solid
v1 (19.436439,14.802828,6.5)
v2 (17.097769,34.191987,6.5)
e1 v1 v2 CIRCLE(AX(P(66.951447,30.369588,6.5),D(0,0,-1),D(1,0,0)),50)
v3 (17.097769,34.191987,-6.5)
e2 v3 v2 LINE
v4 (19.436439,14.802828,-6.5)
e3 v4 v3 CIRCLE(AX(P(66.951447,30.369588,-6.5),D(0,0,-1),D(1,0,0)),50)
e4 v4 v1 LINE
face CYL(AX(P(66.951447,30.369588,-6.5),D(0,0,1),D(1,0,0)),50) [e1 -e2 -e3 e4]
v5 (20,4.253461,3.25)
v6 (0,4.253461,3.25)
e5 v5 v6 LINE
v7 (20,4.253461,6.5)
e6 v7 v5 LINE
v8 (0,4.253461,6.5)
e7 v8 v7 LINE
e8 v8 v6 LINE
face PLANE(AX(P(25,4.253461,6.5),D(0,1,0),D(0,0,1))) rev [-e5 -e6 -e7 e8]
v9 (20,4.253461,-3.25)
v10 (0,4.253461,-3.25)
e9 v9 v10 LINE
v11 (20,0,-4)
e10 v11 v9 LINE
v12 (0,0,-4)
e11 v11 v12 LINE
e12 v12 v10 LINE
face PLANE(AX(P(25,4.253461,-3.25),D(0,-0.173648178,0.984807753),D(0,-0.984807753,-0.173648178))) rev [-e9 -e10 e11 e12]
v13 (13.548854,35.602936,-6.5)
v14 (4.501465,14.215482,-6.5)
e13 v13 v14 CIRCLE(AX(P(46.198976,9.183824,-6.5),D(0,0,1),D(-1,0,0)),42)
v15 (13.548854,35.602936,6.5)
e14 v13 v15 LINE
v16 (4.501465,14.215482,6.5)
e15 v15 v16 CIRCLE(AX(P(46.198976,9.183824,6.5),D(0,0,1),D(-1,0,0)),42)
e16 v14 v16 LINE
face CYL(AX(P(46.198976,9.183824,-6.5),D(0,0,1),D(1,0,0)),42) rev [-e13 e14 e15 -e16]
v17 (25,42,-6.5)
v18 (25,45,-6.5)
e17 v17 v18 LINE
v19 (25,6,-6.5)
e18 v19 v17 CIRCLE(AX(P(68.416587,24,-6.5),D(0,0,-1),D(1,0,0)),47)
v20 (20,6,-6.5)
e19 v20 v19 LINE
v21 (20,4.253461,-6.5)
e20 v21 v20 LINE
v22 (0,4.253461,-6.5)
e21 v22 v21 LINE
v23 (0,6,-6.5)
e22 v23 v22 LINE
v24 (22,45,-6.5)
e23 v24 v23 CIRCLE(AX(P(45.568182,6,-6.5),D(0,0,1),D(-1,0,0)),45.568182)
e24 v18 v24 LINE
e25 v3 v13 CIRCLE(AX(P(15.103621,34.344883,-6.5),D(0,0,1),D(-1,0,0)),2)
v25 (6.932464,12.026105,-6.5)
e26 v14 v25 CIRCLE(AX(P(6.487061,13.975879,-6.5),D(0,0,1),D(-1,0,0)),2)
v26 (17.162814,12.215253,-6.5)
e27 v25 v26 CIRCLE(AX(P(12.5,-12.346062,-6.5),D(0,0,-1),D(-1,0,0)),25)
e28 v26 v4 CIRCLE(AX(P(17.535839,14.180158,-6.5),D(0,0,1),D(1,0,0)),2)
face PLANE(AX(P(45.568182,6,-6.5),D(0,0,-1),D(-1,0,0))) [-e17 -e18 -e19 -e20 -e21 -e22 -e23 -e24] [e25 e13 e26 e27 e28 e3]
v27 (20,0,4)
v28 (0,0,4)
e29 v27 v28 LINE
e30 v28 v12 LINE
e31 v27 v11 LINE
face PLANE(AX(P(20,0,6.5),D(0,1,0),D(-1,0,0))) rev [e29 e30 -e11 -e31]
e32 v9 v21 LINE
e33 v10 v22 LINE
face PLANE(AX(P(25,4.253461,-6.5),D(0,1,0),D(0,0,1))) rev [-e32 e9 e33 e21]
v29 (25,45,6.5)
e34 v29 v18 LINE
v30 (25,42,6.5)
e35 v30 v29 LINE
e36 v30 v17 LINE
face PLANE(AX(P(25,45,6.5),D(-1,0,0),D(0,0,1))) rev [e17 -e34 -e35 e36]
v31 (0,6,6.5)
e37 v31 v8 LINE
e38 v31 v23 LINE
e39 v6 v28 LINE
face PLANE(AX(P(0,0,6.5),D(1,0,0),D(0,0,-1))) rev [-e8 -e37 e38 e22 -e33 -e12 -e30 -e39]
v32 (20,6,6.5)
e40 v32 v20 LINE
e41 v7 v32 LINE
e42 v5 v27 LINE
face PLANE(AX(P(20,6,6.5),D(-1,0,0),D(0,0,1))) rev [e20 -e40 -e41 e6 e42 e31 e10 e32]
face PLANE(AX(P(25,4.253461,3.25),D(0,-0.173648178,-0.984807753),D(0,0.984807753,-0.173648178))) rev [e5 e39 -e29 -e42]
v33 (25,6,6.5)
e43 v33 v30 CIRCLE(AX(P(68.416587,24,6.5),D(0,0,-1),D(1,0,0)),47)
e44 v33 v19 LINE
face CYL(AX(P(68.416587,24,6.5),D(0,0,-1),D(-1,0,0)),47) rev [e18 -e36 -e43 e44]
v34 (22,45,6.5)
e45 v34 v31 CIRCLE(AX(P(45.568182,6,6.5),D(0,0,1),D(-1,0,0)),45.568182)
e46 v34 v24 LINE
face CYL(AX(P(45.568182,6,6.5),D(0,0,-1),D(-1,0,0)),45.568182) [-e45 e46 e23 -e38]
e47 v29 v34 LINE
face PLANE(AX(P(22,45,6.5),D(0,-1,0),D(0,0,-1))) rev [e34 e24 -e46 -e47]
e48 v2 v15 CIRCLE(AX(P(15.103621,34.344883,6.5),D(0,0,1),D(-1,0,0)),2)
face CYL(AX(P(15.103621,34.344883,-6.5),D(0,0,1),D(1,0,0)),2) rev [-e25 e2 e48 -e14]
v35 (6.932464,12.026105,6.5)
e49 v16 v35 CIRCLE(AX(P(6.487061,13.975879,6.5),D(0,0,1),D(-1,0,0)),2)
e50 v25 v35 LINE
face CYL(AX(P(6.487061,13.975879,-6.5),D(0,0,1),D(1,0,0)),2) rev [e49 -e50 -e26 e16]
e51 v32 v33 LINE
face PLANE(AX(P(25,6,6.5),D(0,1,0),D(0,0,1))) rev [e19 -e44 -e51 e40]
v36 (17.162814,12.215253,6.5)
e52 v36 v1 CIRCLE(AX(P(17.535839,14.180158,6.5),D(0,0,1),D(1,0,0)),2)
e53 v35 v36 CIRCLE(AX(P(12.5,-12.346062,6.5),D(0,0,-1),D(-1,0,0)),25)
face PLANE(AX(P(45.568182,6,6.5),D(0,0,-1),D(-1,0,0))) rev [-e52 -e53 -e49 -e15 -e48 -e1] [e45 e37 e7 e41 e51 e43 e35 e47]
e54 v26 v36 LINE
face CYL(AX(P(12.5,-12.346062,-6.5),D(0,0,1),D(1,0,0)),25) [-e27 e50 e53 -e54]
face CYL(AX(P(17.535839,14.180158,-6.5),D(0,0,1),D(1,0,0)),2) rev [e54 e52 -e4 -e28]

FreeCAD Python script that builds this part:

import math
import FreeCAD as App
import Part
import Sketcher

V = App.Vector
Q = App.Units.Quantity


def add_polygon(sketch, points):
    """Adds a closed chain of lines whose ends are joined by coincident constraints."""
    first, n = sketch.GeometryCount, len(points)
    for a, b in zip(points, points[1:] + points[:1]):
        sketch.addGeometry(Part.LineSegment(App.Vector(*a, 0), App.Vector(*b, 0)), False)
    for i in range(n):
        sketch.addConstraint(Sketcher.Constraint("Coincident", first + i, 2, first + (i + 1) % n, 1))

doc = App.newDocument("Part")
body = doc.addObject("PartDesign::Body", "Body")

sketch1 = body.newObject("Sketcher::SketchObject", "Sketch")
sketch1.AttachmentSupport = (doc.getObject("XY_Plane"), [""])
sketch1.MapMode = "FlatFace"
sketch1.addGeometry(Part.LineSegment(V(0, 6, 0), V(0, 0, 0)), False)
sketch1.addGeometry(Part.LineSegment(V(0, 0, 0), V(20, 0, 0)), False)
sketch1.addGeometry(Part.LineSegment(V(20, 0, 0), V(20, 6, 0)), False)
sketch1.addGeometry(Part.LineSegment(V(20, 6, 0), V(25, 6, 0)), False)
sketch1.addGeometry(Part.ArcOfCircle(Part.Circle(V(68.416587, 24, 0), V(0, 0, 1), 47), math.radians(157.481686), math.radians(202.518314)), False)
sketch1.addGeometry(Part.LineSegment(V(25, 42, 0), V(25, 45, 0)), False)
sketch1.addGeometry(Part.LineSegment(V(25, 45, 0), V(22, 45, 0)), False)
sketch1.addGeometry(Part.ArcOfCircle(Part.Circle(V(45.568182, 6, 0), V(0, 0, 1), 45.568182), math.radians(121.145087), math.radians(180)), False)
sketch1.addConstraint(Sketcher.Constraint("Coincident", 0, 2, 1, 1))
sketch1.addConstraint(Sketcher.Constraint("Coincident", 1, 2, 2, 1))
sketch1.addConstraint(Sketcher.Constraint("Coincident", 2, 2, 3, 1))
sketch1.addConstraint(Sketcher.Constraint("Coincident", 3, 2, 4, 2))
sketch1.addConstraint(Sketcher.Constraint("Coincident", 4, 1, 5, 1))
sketch1.addConstraint(Sketcher.Constraint("Coincident", 5, 2, 6, 1))
sketch1.addConstraint(Sketcher.Constraint("Coincident", 6, 2, 7, 1))
sketch1.addConstraint(Sketcher.Constraint("Tangent", 7, 2, 0, 1))
sketch1.addConstraint(Sketcher.Constraint("Vertical", 0))
sketch1.addConstraint(Sketcher.Constraint("Horizontal", 1))
sketch1.addConstraint(Sketcher.Constraint("Vertical", 2))
sketch1.addConstraint(Sketcher.Constraint("Horizontal", 3))
sketch1.addConstraint(Sketcher.Constraint("Vertical", 5))
sketch1.addConstraint(Sketcher.Constraint("Horizontal", 6))
sketch1.addConstraint(Sketcher.Constraint("Coincident", 0, 2, -1, 1))
sketch1.addConstraint(Sketcher.Constraint("Horizontal", 7, 3, 2, 2))
sketch1.addConstraint(Sketcher.Constraint("Vertical", 3, 2, 4, 1))
sketch1.addConstraint(Sketcher.Constraint("Equal", 6, 5))
sketch1.addConstraint(Sketcher.Constraint("Radius", 4, Q("47 mm")))
sketch1.addConstraint(Sketcher.Constraint("DistanceX", 1, 1, 1, 2, Q("20 mm")))
sketch1.addConstraint(Sketcher.Constraint("DistanceX", 3, 1, 3, 2, Q("5 mm")))
sketch1.addConstraint(Sketcher.Constraint("DistanceX", 6, 2, 6, 1, Q("3 mm")))
sketch1.addConstraint(Sketcher.Constraint("DistanceY", 0, 2, 0, 1, Q("6 mm")))
sketch1.addConstraint(Sketcher.Constraint("DistanceY", -1, 1, 4, 3, Q("24 mm")))
pad1 = body.newObject("PartDesign::Pad", "Pad")
pad1.Profile = sketch1
pad1.Length = 13
pad1.Midplane = True

sketch2 = body.newObject("Sketcher::SketchObject", "Sketch001")
sketch2.AttachmentSupport = (doc.getObject("YZ_Plane"), [""])
sketch2.MapMode = "FlatFace"
add_polygon(sketch2, [(4.253461, 6.5), (4.253461, 3.25), (0, 4), (0, 6.5)])
add_polygon(sketch2, [(0, -6.5), (0, -4), (4.253461, -3.25), (4.253461, -6.5)])
sketch2.addConstraint(Sketcher.Constraint("Vertical", 0))
sketch2.addConstraint(Sketcher.Constraint("Vertical", 2))
sketch2.addConstraint(Sketcher.Constraint("Horizontal", 3))
sketch2.addConstraint(Sketcher.Constraint("Vertical", 4))
sketch2.addConstraint(Sketcher.Constraint("Vertical", 6))
sketch2.addConstraint(Sketcher.Constraint("Horizontal", 7))
sketch2.addConstraint(Sketcher.Constraint("Symmetric", 1, 2, 4, 2, -1, 1))
sketch2.addConstraint(Sketcher.Constraint("Symmetric", 0, 2, 5, 2, -1))
sketch2.addConstraint(Sketcher.Constraint("Symmetric", 2, 2, 7, 2, -1))
sketch2.addConstraint(Sketcher.Constraint("Angle", 1, Q("170 deg")))
sketch2.addConstraint(Sketcher.Constraint("DistanceY", 2, 1, 2, 2, Q("2.5 mm")))
sketch2.addConstraint(Sketcher.Constraint("DistanceY", -1, 1, 1, 2, Q("4 mm")))
sketch2.addConstraint(Sketcher.Constraint("DistanceY", 0, 2, 0, 1, Q("3.25 mm")))
pocket1 = body.newObject("PartDesign::Pocket", "Pocket")
pocket1.Profile = sketch2
pocket1.Type = "ThroughAll"
pocket1.Reversed = True

sketch3 = body.newObject("Sketcher::SketchObject", "Sketch002")
sketch3.AttachmentSupport = (doc.getObject("XY_Plane"), [""])
sketch3.MapMode = "FlatFace"
sketch3.AttachmentOffset = App.Placement(V(0, 0, 6.5), App.Rotation())
sketch3.addGeometry(Part.ArcOfCircle(Part.Circle(V(12.5, -12.346062, 0), V(0, 0, 1), 25), math.radians(79.25067), math.radians(102.867752)), False)
sketch3.addGeometry(Part.ArcOfCircle(Part.Circle(V(17.535839, 14.180158, 0), V(0, 0, 1), 2), math.radians(-100.74933), math.radians(18.139714)), False)
sketch3.addGeometry(Part.ArcOfCircle(Part.Circle(V(66.951447, 30.369588, 0), V(0, 0, 1), 50), math.radians(175.615575), math.radians(198.139714)), False)
sketch3.addGeometry(Part.ArcOfCircle(Part.Circle(V(15.103621, 34.344883, 0), V(0, 0, 1), 2), math.radians(-4.384425), math.radians(141.021665)), False)
sketch3.addGeometry(Part.ArcOfCircle(Part.Circle(V(46.198976, 9.183824, 0), V(0, 0, 1), 42), math.radians(141.021665), math.radians(173.11936)), False)
sketch3.addGeometry(Part.ArcOfCircle(Part.Circle(V(6.487061, 13.975879, 0), V(0, 0, 1), 2), math.radians(173.11936), math.radians(282.867752)), False)
sketch3.addConstraint(Sketcher.Constraint("Coincident", 0, 1, 1, 1))
sketch3.addConstraint(Sketcher.Constraint("Coincident", 1, 2, 2, 2))
sketch3.addConstraint(Sketcher.Constraint("Coincident", 2, 1, 3, 1))
sketch3.addConstraint(Sketcher.Constraint("Coincident", 3, 2, 4, 1))
sketch3.addConstraint(Sketcher.Constraint("Coincident", 4, 2, 5, 1))
sketch3.addConstraint(Sketcher.Constraint("Coincident", 5, 2, 0, 2))
sketch3.addConstraint(Sketcher.Constraint("Radius", 0, Q("25 mm")))
sketch3.addConstraint(Sketcher.Constraint("Radius", 1, Q("2 mm")))
sketch3.addConstraint(Sketcher.Constraint("Radius", 2, Q("50 mm")))
sketch3.addConstraint(Sketcher.Constraint("Radius", 3, Q("2 mm")))
sketch3.addConstraint(Sketcher.Constraint("Radius", 4, Q("42 mm")))
sketch3.addConstraint(Sketcher.Constraint("Radius", 5, Q("2 mm")))
sketch3.addConstraint(Sketcher.Constraint("DistanceX", -1, 1, 0, 3, Q("12.5 mm")))
sketch3.addConstraint(Sketcher.Constraint("DistanceX", 4, 2, 5, 2, Q("2.430999 mm")))
sketch3.addConstraint(Sketcher.Constraint("DistanceX", 1, 3, 1, 2, Q("1.9006 mm")))
sketch3.addConstraint(Sketcher.Constraint("DistanceY", 4, 2, 3, 3, Q("20.129402 mm")))
sketch3.addConstraint(Sketcher.Constraint("DistanceY", 0, 3, -1, 1, Q("12.346062 mm")))
sketch3.addConstraint(Sketcher.Constraint("DistanceX", -1, 1, 1, 3, Q("17.535839 mm")))
sketch3.addConstraint(Sketcher.Constraint("DistanceX", -1, 1, 3, 3, Q("15.103621 mm")))
sketch3.addConstraint(Sketcher.Constraint("DistanceX", -1, 1, 5, 3, Q("6.487061 mm")))
sketch3.addConstraint(Sketcher.Constraint("DistanceX", -1, 1, 2, 1, Q("17.097769 mm")))
sketch3.addConstraint(Sketcher.Constraint("DistanceY", -1, 1, 4, 2, Q("14.215482 mm")))
sketch3.addConstraint(Sketcher.Constraint("DistanceY", 0, 1, 3, 3, Q("22.129631 mm")))
sketch3.addConstraint(Sketcher.Constraint("DistanceY", 2, 1, 3, 2, Q("1.410949 mm")))
pocket2 = body.newObject("PartDesign::Pocket", "Pocket001")
pocket2.Profile = sketch3
pocket2.Type = "ThroughAll"

doc.recompute()
